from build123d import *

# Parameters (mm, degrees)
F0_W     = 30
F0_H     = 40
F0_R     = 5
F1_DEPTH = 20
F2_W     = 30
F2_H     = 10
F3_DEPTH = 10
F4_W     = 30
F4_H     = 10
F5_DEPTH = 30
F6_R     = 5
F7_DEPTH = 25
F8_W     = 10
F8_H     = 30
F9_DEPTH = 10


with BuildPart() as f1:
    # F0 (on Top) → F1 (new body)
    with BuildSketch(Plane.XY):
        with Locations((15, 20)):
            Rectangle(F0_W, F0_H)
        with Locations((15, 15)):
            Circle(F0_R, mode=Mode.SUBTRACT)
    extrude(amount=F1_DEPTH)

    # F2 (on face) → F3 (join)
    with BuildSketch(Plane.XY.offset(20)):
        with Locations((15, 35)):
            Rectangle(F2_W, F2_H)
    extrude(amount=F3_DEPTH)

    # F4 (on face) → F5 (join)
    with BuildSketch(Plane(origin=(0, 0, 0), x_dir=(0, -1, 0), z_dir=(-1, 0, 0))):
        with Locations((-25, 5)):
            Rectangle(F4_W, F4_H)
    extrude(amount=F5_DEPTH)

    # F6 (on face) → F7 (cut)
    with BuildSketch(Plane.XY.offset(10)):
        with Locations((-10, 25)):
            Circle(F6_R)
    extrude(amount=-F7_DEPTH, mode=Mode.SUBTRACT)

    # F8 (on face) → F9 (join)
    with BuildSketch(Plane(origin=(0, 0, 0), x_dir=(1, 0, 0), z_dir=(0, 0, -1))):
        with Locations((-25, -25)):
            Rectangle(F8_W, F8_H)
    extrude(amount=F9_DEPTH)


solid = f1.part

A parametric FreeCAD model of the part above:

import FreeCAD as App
import Part
import Sketcher

doc = App.newDocument("Part")
body = doc.addObject("PartDesign::Body", "Body")

sketch1 = body.newObject("Sketcher::SketchObject", "Sketch")
sketch1.AttachmentSupport = (doc.getObject("XY_Plane"), [""])
sketch1.MapMode = "FlatFace"
sketch1.addGeometry([
    Part.LineSegment(App.Vector(0, 40, 0), App.Vector(0, 0, 0)),
    Part.LineSegment(App.Vector(0, 0, 0), App.Vector(30, 0, 0)),
    Part.LineSegment(App.Vector(30, 0, 0), App.Vector(30, 40, 0)),
    Part.LineSegment(App.Vector(30, 40, 0), App.Vector(0, 40, 0)),
    Part.Circle(App.Vector(15, 15, 0), App.Vector(0, 0, 1), 5),
], False)
sketch1.addConstraint([
    Sketcher.Constraint("Coincident", 0, 2, 1, 1),
    Sketcher.Constraint("Coincident", 1, 2, 2, 1),
    Sketcher.Constraint("Coincident", 2, 2, 3, 1),
    Sketcher.Constraint("Coincident", 3, 2, 0, 1),
    Sketcher.Constraint("Vertical", 0),
    Sketcher.Constraint("Horizontal", 1),
    Sketcher.Constraint("Vertical", 2),
    Sketcher.Constraint("Horizontal", 3),
    Sketcher.Constraint("Coincident", 0, 2, -1, 1),
    Sketcher.Constraint("Diameter", 4, 10.0),
    Sketcher.Constraint("DistanceX", 1, 1, 1, 2, 30.0),
    Sketcher.Constraint("DistanceY", 0, 2, 0, 1, 40.0),
    Sketcher.Constraint("DistanceX", -1, 1, 4, 3, 15.0),
    Sketcher.Constraint("DistanceY", -1, 1, 4, 3, 15.0),
])
pad1 = body.newObject("PartDesign::Pad", "Pad")
pad1.Profile = sketch1
pad1.Length = 20

sketch2 = body.newObject("Sketcher::SketchObject", "Sketch001")
sketch2.AttachmentSupport = (doc.getObject("XY_Plane"), [""])
sketch2.MapMode = "FlatFace"
sketch2.AttachmentOffset = App.Placement(App.Vector(0, 0, 20), App.Rotation())
sketch2.addGeometry([
    Part.LineSegment(App.Vector(0, 40, 0), App.Vector(0, 30, 0)),
    Part.LineSegment(App.Vector(0, 30, 0), App.Vector(30, 30, 0)),
    Part.LineSegment(App.Vector(30, 30, 0), App.Vector(30, 40, 0)),
    Part.LineSegment(App.Vector(30, 40, 0), App.Vector(0, 40, 0)),
], False)
sketch2.addConstraint([
    Sketcher.Constraint("Coincident", 0, 2, 1, 1),
    Sketcher.Constraint("Coincident", 1, 2, 2, 1),
    Sketcher.Constraint("Coincident", 2, 2, 3, 1),
    Sketcher.Constraint("Coincident", 3, 2, 0, 1),
    Sketcher.Constraint("Vertical", 0),
    Sketcher.Constraint("Horizontal", 1),
    Sketcher.Constraint("Vertical", 2),
    Sketcher.Constraint("Horizontal", 3),
    Sketcher.Constraint("PointOnObject", 0, 2, -2),
    Sketcher.Constraint("DistanceX", 1, 1, 1, 2, 30.0),
    Sketcher.Constraint("DistanceY", 0, 2, 0, 1, 10.0),
    Sketcher.Constraint("DistanceY", -1, 1, 0, 2, 30.0),
])
pad2 = body.newObject("PartDesign::Pad", "Pad001")
pad2.Profile = sketch2
pad2.Length = 10

sketch3 = body.newObject("Sketcher::SketchObject", "Sketch002")
sketch3.AttachmentSupport = (doc.getObject("YZ_Plane"), [""])
sketch3.MapMode = "FlatFace"
sketch3.addGeometry([
    Part.LineSegment(App.Vector(40, 10, 0), App.Vector(40, 0, 0)),
    Part.LineSegment(App.Vector(40, 0, 0), App.Vector(10, 0, 0)),
    Part.LineSegment(App.Vector(10, 0, 0), App.Vector(10, 10, 0)),
    Part.LineSegment(App.Vector(10, 10, 0), App.Vector(40, 10, 0)),
], False)
sketch3.addConstraint([
    Sketcher.Constraint("Coincident", 0, 2, 1, 1),
    Sketcher.Constraint("Coincident", 1, 2, 2, 1),
    Sketcher.Constraint("Coincident", 2, 2, 3, 1),
    Sketcher.Constraint("Coincident", 3, 2, 0, 1),
    Sketcher.Constraint("Vertical", 0),
    Sketcher.Constraint("Horizontal", 1),
    Sketcher.Constraint("Vertical", 2),
    Sketcher.Constraint("Horizontal", 3),
    Sketcher.Constraint("PointOnObject", 0, 2, -1),
    Sketcher.Constraint("DistanceX", 1, 2, 1, 1, 30.0),
    Sketcher.Constraint("DistanceY", 0, 2, 0, 1, 10.0),
    Sketcher.Constraint("DistanceX", -1, 1, 0, 2, 40.0),
])
pad3 = body.newObject("PartDesign::Pad", "Pad002")
pad3.Profile = sketch3
pad3.Length = 30
pad3.Reversed = True

sketch4 = body.newObject("Sketcher::SketchObject", "Sketch003")
sketch4.AttachmentSupport = (doc.getObject("XY_Plane"), [""])
sketch4.MapMode = "FlatFace"
sketch4.AttachmentOffset = App.Placement(App.Vector(0, 0, 10), App.Rotation())
sketch4.addGeometry(Part.Circle(App.Vector(-10, 25, 0), App.Vector(0, 0, 1), 5), False)
sketch4.addConstraint([
    Sketcher.Constraint("Diameter", 0, 10.0),
    Sketcher.Constraint("DistanceX", 0, 3, -1, 1, 10.0),
    Sketcher.Constraint("DistanceY", -1, 1, 0, 3, 25.0),
])
pocket1 = body.newObject("PartDesign::Pocket", "Pocket")
pocket1.Profile = sketch4
pocket1.Length = 25

sketch5 = body.newObject("Sketcher::SketchObject", "Sketch004")
sketch5.AttachmentSupport = (doc.getObject("XY_Plane"), [""])
sketch5.MapMode = "FlatFace"
sketch5.addGeometry([
    Part.LineSegment(App.Vector(-30, 10, 0), App.Vector(-30, 40, 0)),
    Part.LineSegment(App.Vector(-30, 40, 0), App.Vector(-20, 40, 0)),
    Part.LineSegment(App.Vector(-20, 40, 0), App.Vector(-20, 10, 0)),
    Part.LineSegment(App.Vector(-20, 10, 0), App.Vector(-30, 10, 0)),
], False)
sketch5.addConstraint([
    Sketcher.Constraint("Coincident", 0, 2, 1, 1),
    Sketcher.Constraint("Coincident", 1, 2, 2, 1),
    Sketcher.Constraint("Coincident", 2, 2, 3, 1),
    Sketcher.Constraint("Coincident", 3, 2, 0, 1),
    Sketcher.Constraint("Vertical", 0),
    Sketcher.Constraint("Horizontal", 1),
    Sketcher.Constraint("Vertical", 2),
    Sketcher.Constraint("Horizontal", 3),
    Sketcher.Constraint("DistanceX", 1, 1, 1, 2, 10.0),
    Sketcher.Constraint("DistanceY", 0, 1, 0, 2, 30.0),
    Sketcher.Constraint("DistanceX", 0, 2, -1, 1, 30.0),
    Sketcher.Constraint("DistanceY", -1, 1, 0, 2, 40.0),
])
pad4 = body.newObject("PartDesign::Pad", "Pad003")
pad4.Profile = sketch5
pad4.Length = 10
pad4.Reversed = True

doc.recompute()
